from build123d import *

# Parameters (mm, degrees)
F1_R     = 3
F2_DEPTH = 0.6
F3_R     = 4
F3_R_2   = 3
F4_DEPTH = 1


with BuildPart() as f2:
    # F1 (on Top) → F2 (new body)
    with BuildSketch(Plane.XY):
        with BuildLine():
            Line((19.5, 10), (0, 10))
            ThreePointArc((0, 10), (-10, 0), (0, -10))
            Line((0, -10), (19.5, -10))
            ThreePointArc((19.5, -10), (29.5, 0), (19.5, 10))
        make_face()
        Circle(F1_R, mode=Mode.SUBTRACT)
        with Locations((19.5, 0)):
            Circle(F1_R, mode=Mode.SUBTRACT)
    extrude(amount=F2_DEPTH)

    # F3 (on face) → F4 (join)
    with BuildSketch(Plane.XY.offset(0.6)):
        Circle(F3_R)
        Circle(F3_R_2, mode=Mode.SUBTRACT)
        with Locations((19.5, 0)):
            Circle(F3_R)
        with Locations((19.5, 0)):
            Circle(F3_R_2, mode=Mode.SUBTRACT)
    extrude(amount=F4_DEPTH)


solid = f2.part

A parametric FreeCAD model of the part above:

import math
import FreeCAD as App
import Part
import Sketcher

V = App.Vector
Q = App.Units.Quantity

doc = App.newDocument("Part")
body = doc.addObject("PartDesign::Body", "Body")

# Sketch on XY plane
sketch1 = doc.addObject("Sketcher::SketchObject", "Sketch")
body.addObject(sketch1)
sketch1.AttachmentSupport = (doc.XY_Plane, [""])
sketch1.MapMode = "FlatFace"
sketch1.addGeometry([
    Part.LineSegment(V(19.5, 10, 0), V(0, 10, 0)),  # 0
    Part.ArcOfCircle(Part.Circle(V(0, 0, 0), V(0, 0, 1), 10), math.radians(90), math.radians(270)),  # 1
    Part.LineSegment(V(0, -10, 0), V(19.5, -10, 0)),  # 2
    Part.ArcOfCircle(Part.Circle(V(19.5, 0, 0), V(0, 0, 1), 10), math.radians(-90), math.radians(90)),  # 3
    Part.Circle(V(0, 0, 0), V(0, 0, 1), 3),  # 4
    Part.Circle(V(19.5, 0, 0), V(0, 0, 1), 3),  # 5
], False)
sketch1.addConstraint([
    Sketcher.Constraint("Tangent", 0, 2, 1, 1),
    Sketcher.Constraint("Tangent", 1, 2, 2, 1),
    Sketcher.Constraint("Tangent", 2, 2, 3, 1),
    Sketcher.Constraint("Tangent", 3, 2, 0, 1),
    Sketcher.Constraint("Horizontal", 0),
    Sketcher.Constraint("Horizontal", 2),
    Sketcher.Constraint("Coincident", 1, 3, -1, 1),
    Sketcher.Constraint("Coincident", 4, 3, -1, 1),
    Sketcher.Constraint("Coincident", 5, 3, 3, 3),
    Sketcher.Constraint("Equal", 4, 5),
    Sketcher.Constraint("Diameter", 4, Q("6 mm")),
    Sketcher.Constraint("Radius", 1, Q("10 mm")),
    Sketcher.Constraint("DistanceX", 0, 2, 0, 1, Q("19.5 mm")),
])
pad1 = doc.addObject("PartDesign::Pad", "Pad")
body.addObject(pad1)
pad1.Profile = sketch1
pad1.Length = 0.6

# Sketch on XY plane
sketch2 = doc.addObject("Sketcher::SketchObject", "Sketch001")
body.addObject(sketch2)
sketch2.AttachmentSupport = (doc.XY_Plane, [""])
sketch2.MapMode = "FlatFace"
sketch2.AttachmentOffset = App.Placement(V(0, 0, 0.6), App.Rotation())
sketch2.addGeometry([
    Part.Circle(V(0, 0, 0), V(0, 0, 1), 4),
    Part.Circle(V(0, 0, 0), V(0, 0, 1), 3),
    Part.Circle(V(19.5, 0, 0), V(0, 0, 1), 4),
    Part.Circle(V(19.5, 0, 0), V(0, 0, 1), 3),
], False)
sketch2.addConstraint([
    Sketcher.Constraint("Coincident", 0, 3, -1, 1),
    Sketcher.Constraint("Coincident", 1, 3, -1, 1),
    Sketcher.Constraint("Coincident", 3, 3, 2, 3),
    Sketcher.Constraint("Equal", 0, 2),
    Sketcher.Constraint("Equal", 1, 3),
    Sketcher.Constraint("PointOnObject", 2, 3, -1),
    Sketcher.Constraint("Diameter", 0, Q("8 mm")),
    Sketcher.Constraint("Diameter", 1, Q("6 mm")),
    Sketcher.Constraint("DistanceX", -1, 1, 2, 3, Q("19.5 mm")),
])
pad2 = doc.addObject("PartDesign::Pad", "Pad001")
body.addObject(pad2)
pad2.Profile = sketch2
pad2.Length = 1

doc.recompute()
